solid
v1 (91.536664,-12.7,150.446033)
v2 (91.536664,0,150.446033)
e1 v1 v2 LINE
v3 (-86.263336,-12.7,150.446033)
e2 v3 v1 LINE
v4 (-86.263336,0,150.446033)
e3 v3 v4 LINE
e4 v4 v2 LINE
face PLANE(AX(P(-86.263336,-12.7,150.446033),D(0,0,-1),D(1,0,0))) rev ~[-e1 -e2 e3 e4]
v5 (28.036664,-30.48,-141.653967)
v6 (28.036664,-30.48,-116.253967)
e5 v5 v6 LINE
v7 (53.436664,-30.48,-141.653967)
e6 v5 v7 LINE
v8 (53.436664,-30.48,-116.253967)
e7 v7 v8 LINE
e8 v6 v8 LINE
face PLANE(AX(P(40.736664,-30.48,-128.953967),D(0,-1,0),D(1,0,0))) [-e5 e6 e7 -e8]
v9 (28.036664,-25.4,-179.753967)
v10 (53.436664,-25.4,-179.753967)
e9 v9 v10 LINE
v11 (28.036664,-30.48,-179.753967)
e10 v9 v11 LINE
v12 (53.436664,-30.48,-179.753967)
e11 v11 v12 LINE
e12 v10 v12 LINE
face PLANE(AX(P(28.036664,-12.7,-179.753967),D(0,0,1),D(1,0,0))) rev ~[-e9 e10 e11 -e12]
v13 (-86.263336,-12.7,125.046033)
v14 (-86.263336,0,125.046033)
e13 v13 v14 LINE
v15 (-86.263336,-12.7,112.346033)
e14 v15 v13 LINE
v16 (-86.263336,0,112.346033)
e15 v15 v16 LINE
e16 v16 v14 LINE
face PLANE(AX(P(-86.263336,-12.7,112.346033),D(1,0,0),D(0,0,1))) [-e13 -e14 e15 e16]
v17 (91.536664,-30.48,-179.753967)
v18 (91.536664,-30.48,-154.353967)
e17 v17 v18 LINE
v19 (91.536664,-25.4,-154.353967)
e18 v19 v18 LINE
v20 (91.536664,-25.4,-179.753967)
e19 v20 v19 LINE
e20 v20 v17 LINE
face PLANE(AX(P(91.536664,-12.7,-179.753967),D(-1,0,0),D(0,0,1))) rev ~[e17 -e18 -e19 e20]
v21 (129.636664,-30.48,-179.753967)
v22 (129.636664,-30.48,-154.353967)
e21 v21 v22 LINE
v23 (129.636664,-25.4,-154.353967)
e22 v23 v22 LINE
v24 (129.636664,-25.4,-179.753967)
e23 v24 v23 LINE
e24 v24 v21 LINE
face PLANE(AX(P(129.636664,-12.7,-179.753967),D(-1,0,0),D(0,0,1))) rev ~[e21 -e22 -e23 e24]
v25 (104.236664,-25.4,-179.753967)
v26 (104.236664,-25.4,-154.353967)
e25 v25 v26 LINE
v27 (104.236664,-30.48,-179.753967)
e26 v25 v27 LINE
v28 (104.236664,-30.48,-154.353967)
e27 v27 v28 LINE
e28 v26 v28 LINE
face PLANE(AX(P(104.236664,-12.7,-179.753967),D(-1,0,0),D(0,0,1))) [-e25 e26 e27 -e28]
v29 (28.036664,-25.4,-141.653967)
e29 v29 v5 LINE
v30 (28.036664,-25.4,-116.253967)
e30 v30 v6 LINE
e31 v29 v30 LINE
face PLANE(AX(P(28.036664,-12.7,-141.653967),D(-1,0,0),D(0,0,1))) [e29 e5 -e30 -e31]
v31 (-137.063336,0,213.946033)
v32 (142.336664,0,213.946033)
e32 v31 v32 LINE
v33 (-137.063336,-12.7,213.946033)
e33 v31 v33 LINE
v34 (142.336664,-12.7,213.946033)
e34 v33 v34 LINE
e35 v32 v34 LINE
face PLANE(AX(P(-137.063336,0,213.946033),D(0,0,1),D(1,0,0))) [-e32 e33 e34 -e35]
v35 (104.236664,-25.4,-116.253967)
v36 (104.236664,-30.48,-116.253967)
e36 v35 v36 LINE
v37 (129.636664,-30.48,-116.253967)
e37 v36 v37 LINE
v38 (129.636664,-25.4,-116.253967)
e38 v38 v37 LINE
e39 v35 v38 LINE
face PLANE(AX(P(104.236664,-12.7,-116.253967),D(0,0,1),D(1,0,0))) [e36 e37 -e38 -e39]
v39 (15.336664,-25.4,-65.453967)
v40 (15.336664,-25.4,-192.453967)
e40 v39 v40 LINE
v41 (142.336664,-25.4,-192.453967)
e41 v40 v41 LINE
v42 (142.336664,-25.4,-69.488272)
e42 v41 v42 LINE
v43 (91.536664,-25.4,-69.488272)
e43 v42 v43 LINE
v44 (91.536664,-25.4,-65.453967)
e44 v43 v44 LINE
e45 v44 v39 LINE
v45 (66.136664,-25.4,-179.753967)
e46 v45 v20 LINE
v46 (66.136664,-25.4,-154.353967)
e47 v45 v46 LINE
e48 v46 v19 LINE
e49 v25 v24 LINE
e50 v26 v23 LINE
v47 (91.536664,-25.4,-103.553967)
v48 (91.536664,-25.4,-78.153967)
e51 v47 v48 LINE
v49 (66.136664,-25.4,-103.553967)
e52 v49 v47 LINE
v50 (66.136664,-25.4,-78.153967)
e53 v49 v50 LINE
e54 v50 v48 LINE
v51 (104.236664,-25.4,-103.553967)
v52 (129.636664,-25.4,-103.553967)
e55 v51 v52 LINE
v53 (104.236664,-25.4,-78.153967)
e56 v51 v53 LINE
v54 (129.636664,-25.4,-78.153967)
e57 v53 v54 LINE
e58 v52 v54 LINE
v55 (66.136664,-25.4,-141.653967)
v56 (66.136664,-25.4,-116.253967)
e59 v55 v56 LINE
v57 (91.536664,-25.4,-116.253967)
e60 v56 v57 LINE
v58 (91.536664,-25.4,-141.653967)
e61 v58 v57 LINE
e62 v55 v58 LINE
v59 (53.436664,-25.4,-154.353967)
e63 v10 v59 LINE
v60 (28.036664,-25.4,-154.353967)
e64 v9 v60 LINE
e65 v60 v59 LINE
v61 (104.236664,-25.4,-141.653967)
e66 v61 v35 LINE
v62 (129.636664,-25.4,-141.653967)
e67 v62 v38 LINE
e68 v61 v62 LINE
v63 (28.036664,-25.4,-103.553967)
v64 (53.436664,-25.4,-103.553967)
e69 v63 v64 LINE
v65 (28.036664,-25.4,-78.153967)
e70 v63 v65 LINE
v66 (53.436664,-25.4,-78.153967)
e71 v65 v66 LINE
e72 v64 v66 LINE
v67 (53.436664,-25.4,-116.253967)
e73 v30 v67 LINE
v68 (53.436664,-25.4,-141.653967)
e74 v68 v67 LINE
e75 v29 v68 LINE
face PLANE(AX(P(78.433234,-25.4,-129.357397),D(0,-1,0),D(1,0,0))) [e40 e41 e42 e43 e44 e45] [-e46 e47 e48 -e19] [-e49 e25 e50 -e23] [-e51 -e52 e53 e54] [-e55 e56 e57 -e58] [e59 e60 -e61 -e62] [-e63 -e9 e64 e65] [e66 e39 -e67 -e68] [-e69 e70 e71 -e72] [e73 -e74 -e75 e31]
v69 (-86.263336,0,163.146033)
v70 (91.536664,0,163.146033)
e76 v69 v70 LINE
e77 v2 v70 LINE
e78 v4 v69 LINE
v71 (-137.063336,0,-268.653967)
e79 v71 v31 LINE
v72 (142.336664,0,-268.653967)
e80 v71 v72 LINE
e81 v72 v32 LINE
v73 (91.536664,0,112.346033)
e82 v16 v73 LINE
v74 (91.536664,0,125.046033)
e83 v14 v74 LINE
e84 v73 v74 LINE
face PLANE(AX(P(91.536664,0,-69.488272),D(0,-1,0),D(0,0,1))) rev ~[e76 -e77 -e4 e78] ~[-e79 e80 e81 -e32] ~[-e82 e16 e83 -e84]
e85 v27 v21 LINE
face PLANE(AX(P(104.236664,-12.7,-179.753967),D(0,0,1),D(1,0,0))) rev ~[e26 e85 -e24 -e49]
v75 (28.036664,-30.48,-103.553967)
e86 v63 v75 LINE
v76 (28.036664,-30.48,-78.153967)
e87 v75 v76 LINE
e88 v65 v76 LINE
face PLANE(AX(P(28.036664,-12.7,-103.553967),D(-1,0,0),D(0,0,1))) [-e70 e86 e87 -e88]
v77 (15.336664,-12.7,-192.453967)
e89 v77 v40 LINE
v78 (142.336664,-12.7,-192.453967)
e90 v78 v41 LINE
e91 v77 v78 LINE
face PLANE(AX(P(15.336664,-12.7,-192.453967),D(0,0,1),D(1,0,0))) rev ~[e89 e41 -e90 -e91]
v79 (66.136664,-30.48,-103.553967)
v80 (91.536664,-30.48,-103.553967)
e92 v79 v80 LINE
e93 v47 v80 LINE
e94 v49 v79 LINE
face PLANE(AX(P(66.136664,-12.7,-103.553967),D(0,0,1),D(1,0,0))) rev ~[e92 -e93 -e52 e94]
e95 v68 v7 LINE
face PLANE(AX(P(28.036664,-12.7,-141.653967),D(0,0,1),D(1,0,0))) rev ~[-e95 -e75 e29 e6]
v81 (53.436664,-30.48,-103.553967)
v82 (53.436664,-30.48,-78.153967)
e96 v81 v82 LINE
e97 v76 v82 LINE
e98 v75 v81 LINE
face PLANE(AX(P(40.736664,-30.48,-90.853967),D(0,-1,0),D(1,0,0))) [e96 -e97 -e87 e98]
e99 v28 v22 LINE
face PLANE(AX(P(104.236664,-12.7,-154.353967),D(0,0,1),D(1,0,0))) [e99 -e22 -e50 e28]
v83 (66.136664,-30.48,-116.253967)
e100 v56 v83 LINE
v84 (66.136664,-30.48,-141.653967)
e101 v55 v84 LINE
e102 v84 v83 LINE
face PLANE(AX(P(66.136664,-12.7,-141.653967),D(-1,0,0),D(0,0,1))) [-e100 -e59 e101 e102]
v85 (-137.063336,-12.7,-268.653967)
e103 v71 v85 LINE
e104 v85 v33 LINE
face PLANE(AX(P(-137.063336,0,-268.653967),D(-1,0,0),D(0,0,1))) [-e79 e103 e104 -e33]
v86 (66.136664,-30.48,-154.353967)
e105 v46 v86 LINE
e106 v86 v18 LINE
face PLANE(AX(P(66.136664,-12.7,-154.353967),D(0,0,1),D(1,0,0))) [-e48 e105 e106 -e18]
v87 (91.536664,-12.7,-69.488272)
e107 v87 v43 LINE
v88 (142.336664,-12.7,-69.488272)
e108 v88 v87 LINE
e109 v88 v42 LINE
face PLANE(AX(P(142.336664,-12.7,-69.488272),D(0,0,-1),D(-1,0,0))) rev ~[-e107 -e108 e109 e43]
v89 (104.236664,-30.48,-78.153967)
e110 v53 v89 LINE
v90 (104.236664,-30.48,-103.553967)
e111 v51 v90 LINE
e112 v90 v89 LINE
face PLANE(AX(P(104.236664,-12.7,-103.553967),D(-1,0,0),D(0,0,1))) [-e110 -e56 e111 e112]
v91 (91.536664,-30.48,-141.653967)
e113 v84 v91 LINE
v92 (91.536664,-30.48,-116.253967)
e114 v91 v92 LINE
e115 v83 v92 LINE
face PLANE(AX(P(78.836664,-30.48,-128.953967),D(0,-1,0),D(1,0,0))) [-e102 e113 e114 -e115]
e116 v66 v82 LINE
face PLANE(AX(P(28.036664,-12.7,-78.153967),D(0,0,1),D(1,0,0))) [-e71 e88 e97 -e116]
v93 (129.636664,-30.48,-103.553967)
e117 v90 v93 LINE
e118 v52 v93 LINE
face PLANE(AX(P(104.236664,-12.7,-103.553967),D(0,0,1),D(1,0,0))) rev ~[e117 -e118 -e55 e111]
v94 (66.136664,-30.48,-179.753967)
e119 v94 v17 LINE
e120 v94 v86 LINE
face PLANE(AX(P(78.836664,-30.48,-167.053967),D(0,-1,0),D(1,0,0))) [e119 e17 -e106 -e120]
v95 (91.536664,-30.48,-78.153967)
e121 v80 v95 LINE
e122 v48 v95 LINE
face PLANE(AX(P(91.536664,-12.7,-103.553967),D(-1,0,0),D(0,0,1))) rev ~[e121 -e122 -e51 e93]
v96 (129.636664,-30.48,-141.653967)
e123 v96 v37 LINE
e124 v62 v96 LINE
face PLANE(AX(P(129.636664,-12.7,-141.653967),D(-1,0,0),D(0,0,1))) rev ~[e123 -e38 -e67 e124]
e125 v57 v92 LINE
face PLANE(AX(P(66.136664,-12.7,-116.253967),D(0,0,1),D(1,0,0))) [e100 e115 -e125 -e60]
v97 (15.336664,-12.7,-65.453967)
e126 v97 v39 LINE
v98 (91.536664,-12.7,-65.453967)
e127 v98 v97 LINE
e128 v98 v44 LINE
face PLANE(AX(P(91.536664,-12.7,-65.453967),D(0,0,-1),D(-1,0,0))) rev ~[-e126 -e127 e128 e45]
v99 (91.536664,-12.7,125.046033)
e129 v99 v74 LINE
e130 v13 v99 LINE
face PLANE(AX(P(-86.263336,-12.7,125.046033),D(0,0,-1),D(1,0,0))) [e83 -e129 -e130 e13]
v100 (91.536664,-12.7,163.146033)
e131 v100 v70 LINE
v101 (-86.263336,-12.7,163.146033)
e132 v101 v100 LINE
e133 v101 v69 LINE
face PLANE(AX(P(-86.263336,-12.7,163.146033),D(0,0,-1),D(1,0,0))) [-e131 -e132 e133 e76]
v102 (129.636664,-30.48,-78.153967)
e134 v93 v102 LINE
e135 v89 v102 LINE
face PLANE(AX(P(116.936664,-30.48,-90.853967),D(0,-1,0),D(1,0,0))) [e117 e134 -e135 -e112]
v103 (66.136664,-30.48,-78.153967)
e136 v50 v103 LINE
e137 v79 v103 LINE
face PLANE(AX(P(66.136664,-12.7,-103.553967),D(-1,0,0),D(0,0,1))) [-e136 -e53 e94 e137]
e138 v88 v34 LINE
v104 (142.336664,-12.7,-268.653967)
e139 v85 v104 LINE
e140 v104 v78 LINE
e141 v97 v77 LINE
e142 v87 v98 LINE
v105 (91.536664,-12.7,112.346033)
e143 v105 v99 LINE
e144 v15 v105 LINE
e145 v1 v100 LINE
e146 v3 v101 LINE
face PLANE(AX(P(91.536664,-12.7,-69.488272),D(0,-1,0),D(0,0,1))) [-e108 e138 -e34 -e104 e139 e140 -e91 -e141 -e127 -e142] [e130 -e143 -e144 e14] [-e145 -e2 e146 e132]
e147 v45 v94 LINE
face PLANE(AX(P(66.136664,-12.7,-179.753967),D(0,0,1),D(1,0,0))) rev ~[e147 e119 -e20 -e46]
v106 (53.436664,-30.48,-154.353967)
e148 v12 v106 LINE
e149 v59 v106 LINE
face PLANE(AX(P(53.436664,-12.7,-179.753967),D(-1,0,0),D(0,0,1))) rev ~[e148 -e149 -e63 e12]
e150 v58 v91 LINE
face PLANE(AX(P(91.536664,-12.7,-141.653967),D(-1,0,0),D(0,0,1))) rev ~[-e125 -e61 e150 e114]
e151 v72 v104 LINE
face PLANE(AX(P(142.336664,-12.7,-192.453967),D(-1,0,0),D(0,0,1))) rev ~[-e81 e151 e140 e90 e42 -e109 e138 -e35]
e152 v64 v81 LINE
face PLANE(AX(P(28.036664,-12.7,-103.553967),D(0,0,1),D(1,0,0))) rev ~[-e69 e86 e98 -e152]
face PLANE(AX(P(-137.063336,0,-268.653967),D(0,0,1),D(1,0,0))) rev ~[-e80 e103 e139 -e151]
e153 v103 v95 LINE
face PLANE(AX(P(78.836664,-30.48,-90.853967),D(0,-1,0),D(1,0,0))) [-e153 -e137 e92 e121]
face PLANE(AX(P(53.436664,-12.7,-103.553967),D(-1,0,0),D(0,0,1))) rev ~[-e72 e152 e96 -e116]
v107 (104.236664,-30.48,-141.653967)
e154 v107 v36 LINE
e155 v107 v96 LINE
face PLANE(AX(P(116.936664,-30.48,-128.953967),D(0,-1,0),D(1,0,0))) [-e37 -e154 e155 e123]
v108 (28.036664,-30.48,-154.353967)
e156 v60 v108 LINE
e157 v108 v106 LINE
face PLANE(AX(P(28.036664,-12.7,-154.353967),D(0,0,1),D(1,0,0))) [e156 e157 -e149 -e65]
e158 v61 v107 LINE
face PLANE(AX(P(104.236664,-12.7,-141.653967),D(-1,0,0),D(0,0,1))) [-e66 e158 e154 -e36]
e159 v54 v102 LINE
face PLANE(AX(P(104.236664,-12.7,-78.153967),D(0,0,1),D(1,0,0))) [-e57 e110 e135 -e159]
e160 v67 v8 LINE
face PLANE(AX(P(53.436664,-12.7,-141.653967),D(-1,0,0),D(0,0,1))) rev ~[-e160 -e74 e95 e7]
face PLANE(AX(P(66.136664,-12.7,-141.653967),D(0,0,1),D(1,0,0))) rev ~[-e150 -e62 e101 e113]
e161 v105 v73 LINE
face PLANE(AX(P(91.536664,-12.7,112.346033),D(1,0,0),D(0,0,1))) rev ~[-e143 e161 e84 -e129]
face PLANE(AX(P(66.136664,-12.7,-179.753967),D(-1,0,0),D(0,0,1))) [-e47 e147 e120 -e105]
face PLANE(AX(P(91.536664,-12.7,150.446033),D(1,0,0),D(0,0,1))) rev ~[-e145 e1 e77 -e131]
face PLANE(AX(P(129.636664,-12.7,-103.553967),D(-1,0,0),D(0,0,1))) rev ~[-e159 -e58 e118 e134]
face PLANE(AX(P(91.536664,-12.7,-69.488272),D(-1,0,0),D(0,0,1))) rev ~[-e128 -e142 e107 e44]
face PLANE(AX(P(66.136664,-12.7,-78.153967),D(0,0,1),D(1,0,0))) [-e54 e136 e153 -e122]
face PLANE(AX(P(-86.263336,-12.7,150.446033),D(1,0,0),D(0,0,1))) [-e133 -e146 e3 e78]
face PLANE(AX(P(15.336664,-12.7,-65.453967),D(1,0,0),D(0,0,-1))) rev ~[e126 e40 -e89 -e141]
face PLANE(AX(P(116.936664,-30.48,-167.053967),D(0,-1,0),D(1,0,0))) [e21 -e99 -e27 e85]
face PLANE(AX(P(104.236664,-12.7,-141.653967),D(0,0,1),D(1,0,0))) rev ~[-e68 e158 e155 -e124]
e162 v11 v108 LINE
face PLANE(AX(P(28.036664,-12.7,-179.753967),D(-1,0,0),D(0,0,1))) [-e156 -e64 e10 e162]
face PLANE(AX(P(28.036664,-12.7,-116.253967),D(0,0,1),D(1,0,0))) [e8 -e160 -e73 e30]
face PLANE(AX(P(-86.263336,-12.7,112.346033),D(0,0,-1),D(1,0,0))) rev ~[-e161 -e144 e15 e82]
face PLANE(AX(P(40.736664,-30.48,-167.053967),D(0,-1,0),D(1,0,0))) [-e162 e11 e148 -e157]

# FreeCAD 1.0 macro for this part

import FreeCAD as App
import Part
import Sketcher
Q = App.Units.Quantity

doc = App.newDocument("Part")
params = doc.addObject("Spreadsheet::Sheet", "Params")
for row, (alias, value) in enumerate([
    ("sketch1_width", "11 in"),
    ("sketch1_height", "19 in"),
    ("pad1_length", "0.5 in"),
    ("sketch2_width", "7 in"),
    ("sketch2_height", "0.5 in"),
    ("pocket1_length", "1 in"),
    ("sketch3_width", "2 in"),
    ("sketch3_height", "1 in"),
    ("pocket2_length", "1 in"),
    ("sketch4_height", "1 in"),
    ("sketch4_width", "0.5 in"),
    ("pad2_length", "2 in"),
    ("sketch5_width", "1 in"),
    ("pad3_length", "0.7 in"),
    ("sketch6_width", "5 in"),
    ("sketch6_width2", "2 in"),
    ("sketch6_width3", "1 in"),
    ("pad4_length", "0.5 in"),
], start=1):
    params.set(f"A{row}", alias)
    params.set(f"B{row}", "=" + value)
    params.setAlias(f"B{row}", alias)

body = doc.addObject("PartDesign::Body", "Body")

# Sketch on XZ plane
sketch1 = body.newObject("Sketcher::SketchObject", "Sketch")
sketch1.AttachmentSupport = (doc.getObject("XZ_Plane"), [""])
sketch1.MapMode = "FlatFace"
sketch1.addGeometry([
    Part.LineSegment(App.Vector(-137.063336, 213.946033, 0), App.Vector(-137.063336, -268.653967, 0)),
    Part.LineSegment(App.Vector(-137.063336, -268.653967, 0), App.Vector(142.336664, -268.653967, 0)),
    Part.LineSegment(App.Vector(142.336664, -268.653967, 0), App.Vector(142.336664, 213.946033, 0)),
    Part.LineSegment(App.Vector(142.336664, 213.946033, 0), App.Vector(-137.063336, 213.946033, 0)),
], False)
sketch1.addConstraint([
    Sketcher.Constraint("Coincident", 0, 2, 1, 1),
    Sketcher.Constraint("Coincident", 1, 2, 2, 1),
    Sketcher.Constraint("Coincident", 2, 2, 3, 1),
    Sketcher.Constraint("Coincident", 3, 2, 0, 1),
    Sketcher.Constraint("Vertical", 0),
    Sketcher.Constraint("Horizontal", 1),
    Sketcher.Constraint("Vertical", 2),
    Sketcher.Constraint("Horizontal", 3),
    Sketcher.Constraint("DistanceX", 1, 1, 1, 2, Q("11 in")),
    Sketcher.Constraint("DistanceY", 0, 2, 0, 1, Q("19 in")),
    Sketcher.Constraint("DistanceX", 0, 2, -1, 1, Q("137.063336 mm")),
    Sketcher.Constraint("DistanceY", 0, 2, -1, 1, Q("268.653967 mm")),
])
sketch1.setExpression("Constraints[8]", "Params.sketch1_width")
sketch1.setExpression("Constraints[9]", "Params.sketch1_height")
pad1 = body.newObject("PartDesign::Pad", "Pad")
pad1.Profile = sketch1
pad1.setExpression("Length", "Params.pad1_length")

# Sketch on XZ plane
sketch2 = body.newObject("Sketcher::SketchObject", "Sketch001")
sketch2.AttachmentSupport = (doc.getObject("XZ_Plane"), [""])
sketch2.MapMode = "FlatFace"
sketch2.AttachmentOffset = App.Placement(App.Vector(0, 0, 0.5 * 25.4), App.Rotation())
sketch2.addGeometry([
    Part.LineSegment(App.Vector(-86.263336, 163.146033, 0), App.Vector(-86.263336, 150.446033, 0)),  # 0
    Part.LineSegment(App.Vector(-86.263336, 150.446033, 0), App.Vector(91.536664, 150.446033, 0)),  # 1
    Part.LineSegment(App.Vector(91.536664, 150.446033, 0), App.Vector(91.536664, 163.146033, 0)),  # 2
    Part.LineSegment(App.Vector(91.536664, 163.146033, 0), App.Vector(-86.263336, 163.146033, 0)),  # 3
    Part.LineSegment(App.Vector(-86.263336, 125.046033, 0), App.Vector(-86.263336, 112.346033, 0)),  # 4
    Part.LineSegment(App.Vector(-86.263336, 112.346033, 0), App.Vector(91.536664, 112.346033, 0)),  # 5
    Part.LineSegment(App.Vector(91.536664, 112.346033, 0), App.Vector(91.536664, 125.046033, 0)),  # 6
    Part.LineSegment(App.Vector(91.536664, 125.046033, 0), App.Vector(-86.263336, 125.046033, 0)),  # 7
], False)
sketch2.addConstraint([
    Sketcher.Constraint("Coincident", 0, 2, 1, 1),
    Sketcher.Constraint("Coincident", 1, 2, 2, 1),
    Sketcher.Constraint("Coincident", 2, 2, 3, 1),
    Sketcher.Constraint("Coincident", 3, 2, 0, 1),
    Sketcher.Constraint("Coincident", 4, 2, 5, 1),
    Sketcher.Constraint("Coincident", 5, 2, 6, 1),
    Sketcher.Constraint("Coincident", 6, 2, 7, 1),
    Sketcher.Constraint("Coincident", 7, 2, 4, 1),
    Sketcher.Constraint("Vertical", 0),
    Sketcher.Constraint("Horizontal", 1),
    Sketcher.Constraint("Vertical", 2),
    Sketcher.Constraint("Horizontal", 3),
    Sketcher.Constraint("Vertical", 4),
    Sketcher.Constraint("Horizontal", 5),
    Sketcher.Constraint("Vertical", 6),
    Sketcher.Constraint("Horizontal", 7),
    Sketcher.Constraint("Vertical", 3, 2, 4, 2),
    Sketcher.Constraint("Vertical", 2, 2, 5, 2),
    Sketcher.Constraint("Equal", 2, 4),
    Sketcher.Constraint("DistanceX", 1, 1, 1, 2, Q("7 in")),
    Sketcher.Constraint("DistanceY", 0, 2, 0, 1, Q("0.5 in")),
    Sketcher.Constraint("DistanceY", 4, 2, 3, 2, Q("2 in")),
    Sketcher.Constraint("DistanceX", 0, 2, -1, 1, Q("86.263336 mm")),
    Sketcher.Constraint("DistanceY", -1, 1, 0, 2, Q("150.446033 mm")),
])
sketch2.setExpression("Constraints[19]", "Params.sketch2_width")
sketch2.setExpression("Constraints[20]", "Params.sketch2_height")
pocket1 = body.newObject("PartDesign::Pocket", "Pocket")
pocket1.Profile = sketch2
pocket1.setExpression("Length", "Params.pocket1_length")

# Sketch on XZ plane
sketch3 = body.newObject("Sketcher::SketchObject", "Sketch002")
sketch3.AttachmentSupport = (doc.getObject("XZ_Plane"), [""])
sketch3.MapMode = "FlatFace"
sketch3.AttachmentOffset = App.Placement(App.Vector(0, 0, 0.5 * 25.4), App.Rotation())
sketch3.addGeometry([
    Part.LineSegment(App.Vector(91.536664, -44.088272, 0), App.Vector(91.536664, -69.488272, 0)),
    Part.LineSegment(App.Vector(91.536664, -69.488272, 0), App.Vector(142.336664, -69.488272, 0)),
    Part.LineSegment(App.Vector(142.336664, -69.488272, 0), App.Vector(142.336664, -44.088272, 0)),
    Part.LineSegment(App.Vector(142.336664, -44.088272, 0), App.Vector(91.536664, -44.088272, 0)),
], False)
sketch3.addConstraint([
    Sketcher.Constraint("Coincident", 0, 2, 1, 1),
    Sketcher.Constraint("Coincident", 1, 2, 2, 1),
    Sketcher.Constraint("Coincident", 2, 2, 3, 1),
    Sketcher.Constraint("Coincident", 3, 2, 0, 1),
    Sketcher.Constraint("Vertical", 0),
    Sketcher.Constraint("Horizontal", 1),
    Sketcher.Constraint("Vertical", 2),
    Sketcher.Constraint("Horizontal", 3),
    Sketcher.Constraint("DistanceX", 1, 1, 1, 2, Q("2 in")),
    Sketcher.Constraint("DistanceY", 0, 2, 0, 1, Q("1 in")),
    Sketcher.Constraint("DistanceY", 0, 2, -1, 1, Q("69.488272 mm")),
    Sketcher.Constraint("DistanceX", -1, 1, 0, 2, Q("91.536664 mm")),
])
sketch3.setExpression("Constraints[8]", "Params.sketch3_width")
sketch3.setExpression("Constraints[9]", "Params.sketch3_height")
pocket2 = body.newObject("PartDesign::Pocket", "Pocket001")
pocket2.Profile = sketch3
pocket2.setExpression("Length", "Params.pocket2_length")

# Sketch on YZ plane
sketch4 = body.newObject("Sketcher::SketchObject", "Sketch003")
sketch4.AttachmentSupport = (doc.getObject("YZ_Plane"), [""])
sketch4.MapMode = "FlatFace"
sketch4.AttachmentOffset = App.Placement(App.Vector(0, 0, 91.536664), App.Rotation())
sketch4.addGeometry([
    Part.LineSegment(App.Vector(-12.7, -44.088272, 0), App.Vector(-12.7, -69.488272, 0)),
    Part.LineSegment(App.Vector(-12.7, -69.488272, 0), App.Vector(0, -69.488272, 0)),
    Part.LineSegment(App.Vector(0, -69.488272, 0), App.Vector(0, -44.088272, 0)),
    Part.LineSegment(App.Vector(0, -44.088272, 0), App.Vector(-12.7, -44.088272, 0)),
], False)
sketch4.addConstraint([
    Sketcher.Constraint("Coincident", 0, 2, 1, 1),
    Sketcher.Constraint("Coincident", 1, 2, 2, 1),
    Sketcher.Constraint("Coincident", 2, 2, 3, 1),
    Sketcher.Constraint("Coincident", 3, 2, 0, 1),
    Sketcher.Constraint("Vertical", 0),
    Sketcher.Constraint("Horizontal", 1),
    Sketcher.Constraint("Vertical", 2),
    Sketcher.Constraint("Horizontal", 3),
    Sketcher.Constraint("PointOnObject", 1, 2, -2),
    Sketcher.Constraint("DistanceY", 0, 2, 0, 1, Q("1 in")),
    Sketcher.Constraint("DistanceX", 1, 1, 1, 2, Q("0.5 in")),
    Sketcher.Constraint("DistanceY", 0, 2, -1, 1, Q("69.488272 mm")),
])
sketch4.setExpression("Constraints[9]", "Params.sketch4_height")
sketch4.setExpression("Constraints[10]", "Params.sketch4_width")
pad2 = body.newObject("PartDesign::Pad", "Pad001")
pad2.Profile = sketch4
pad2.setExpression("Length", "Params.pad2_length")

# Sketch on XZ plane
sketch5 = body.newObject("Sketcher::SketchObject", "Sketch004")
sketch5.AttachmentSupport = (doc.getObject("XZ_Plane"), [""])
sketch5.MapMode = "FlatFace"
sketch5.AttachmentOffset = App.Placement(App.Vector(0, 0, 0.5 * 25.4), App.Rotation())
sketch5.addGeometry([
    Part.LineSegment(App.Vector(28.036664, -78.153967, 0), App.Vector(28.036664, -103.553967, 0)),  # 0
    Part.LineSegment(App.Vector(28.036664, -103.553967, 0), App.Vector(53.436664, -103.553967, 0)),  # 1
    Part.LineSegment(App.Vector(53.436664, -103.553967, 0), App.Vector(53.436664, -78.153967, 0)),  # 2
    Part.LineSegment(App.Vector(53.436664, -78.153967, 0), App.Vector(28.036664, -78.153967, 0)),  # 3
    Part.LineSegment(App.Vector(66.136664, -78.153967, 0), App.Vector(66.136664, -103.553967, 0)),  # 4
    Part.LineSegment(App.Vector(66.136664, -103.553967, 0), App.Vector(91.536664, -103.553967, 0)),  # 5
    Part.LineSegment(App.Vector(91.536664, -103.553967, 0), App.Vector(91.536664, -78.153967, 0)),  # 6
    Part.LineSegment(App.Vector(91.536664, -78.153967, 0), App.Vector(66.136664, -78.153967, 0)),  # 7
    Part.LineSegment(App.Vector(104.236664, -78.153967, 0), App.Vector(104.236664, -103.553967, 0)),  # 8
    Part.LineSegment(App.Vector(104.236664, -103.553967, 0), App.Vector(129.636664, -103.553967, 0)),  # 9
    Part.LineSegment(App.Vector(129.636664, -103.553967, 0), App.Vector(129.636664, -78.153967, 0)),  # 10
    Part.LineSegment(App.Vector(129.636664, -78.153967, 0), App.Vector(104.236664, -78.153967, 0)),  # 11
    Part.LineSegment(App.Vector(104.236664, -154.353967, 0), App.Vector(104.236664, -179.753967, 0)),  # 12
    Part.LineSegment(App.Vector(104.236664, -179.753967, 0), App.Vector(129.636664, -179.753967, 0)),  # 13
    Part.LineSegment(App.Vector(129.636664, -179.753967, 0), App.Vector(129.636664, -154.353967, 0)),  # 14
    Part.LineSegment(App.Vector(129.636664, -154.353967, 0), App.Vector(104.236664, -154.353967, 0)),  # 15
    Part.LineSegment(App.Vector(66.136664, -154.353967, 0), App.Vector(66.136664, -179.753967, 0)),  # 16
    Part.LineSegment(App.Vector(66.136664, -179.753967, 0), App.Vector(91.536664, -179.753967, 0)),  # 17
    Part.LineSegment(App.Vector(91.536664, -179.753967, 0), App.Vector(91.536664, -154.353967, 0)),  # 18
    Part.LineSegment(App.Vector(91.536664, -154.353967, 0), App.Vector(66.136664, -154.353967, 0)),  # 19
    Part.LineSegment(App.Vector(28.036664, -154.353967, 0), App.Vector(28.036664, -179.753967, 0)),  # 20
    Part.LineSegment(App.Vector(28.036664, -179.753967, 0), App.Vector(53.436664, -179.753967, 0)),  # 21
    Part.LineSegment(App.Vector(53.436664, -179.753967, 0), App.Vector(53.436664, -154.353967, 0)),  # 22
    Part.LineSegment(App.Vector(53.436664, -154.353967, 0), App.Vector(28.036664, -154.353967, 0)),  # 23
    Part.LineSegment(App.Vector(28.036664, -116.253967, 0), App.Vector(28.036664, -141.653967, 0)),  # 24
    Part.LineSegment(App.Vector(28.036664, -141.653967, 0), App.Vector(53.436664, -141.653967, 0)),  # 25
    Part.LineSegment(App.Vector(53.436664, -141.653967, 0), App.Vector(53.436664, -116.253967, 0)),  # 26
    Part.LineSegment(App.Vector(53.436664, -116.253967, 0), App.Vector(28.036664, -116.253967, 0)),  # 27
    Part.LineSegment(App.Vector(66.136664, -116.253967, 0), App.Vector(66.136664, -141.653967, 0)),  # 28
    Part.LineSegment(App.Vector(66.136664, -141.653967, 0), App.Vector(91.536664, -141.653967, 0)),  # 29
    Part.LineSegment(App.Vector(91.536664, -141.653967, 0), App.Vector(91.536664, -116.253967, 0)),  # 30
    Part.LineSegment(App.Vector(91.536664, -116.253967, 0), App.Vector(66.136664, -116.253967, 0)),  # 31
    Part.LineSegment(App.Vector(104.236664, -116.253967, 0), App.Vector(104.236664, -141.653967, 0)),  # 32
    Part.LineSegment(App.Vector(104.236664, -141.653967, 0), App.Vector(129.636664, -141.653967, 0)),  # 33
    Part.LineSegment(App.Vector(129.636664, -141.653967, 0), App.Vector(129.636664, -116.253967, 0)),  # 34
    Part.LineSegment(App.Vector(129.636664, -116.253967, 0), App.Vector(104.236664, -116.253967, 0)),  # 35
], False)
sketch5.addConstraint([
    Sketcher.Constraint("Coincident", 0, 2, 1, 1),
    Sketcher.Constraint("Coincident", 1, 2, 2, 1),
    Sketcher.Constraint("Coincident", 2, 2, 3, 1),
    Sketcher.Constraint("Coincident", 3, 2, 0, 1),
    Sketcher.Constraint("Coincident", 4, 2, 5, 1),
    Sketcher.Constraint("Coincident", 5, 2, 6, 1),
    Sketcher.Constraint("Coincident", 6, 2, 7, 1),
    Sketcher.Constraint("Coincident", 7, 2, 4, 1),
    Sketcher.Constraint("Coincident", 8, 2, 9, 1),
    Sketcher.Constraint("Coincident", 9, 2, 10, 1),
    Sketcher.Constraint("Coincident", 10, 2, 11, 1),
    Sketcher.Constraint("Coincident", 11, 2, 8, 1),
    Sketcher.Constraint("Coincident", 12, 2, 13, 1),
    Sketcher.Constraint("Coincident", 13, 2, 14, 1),
    Sketcher.Constraint("Coincident", 14, 2, 15, 1),
    Sketcher.Constraint("Coincident", 15, 2, 12, 1),
    Sketcher.Constraint("Coincident", 16, 2, 17, 1),
    Sketcher.Constraint("Coincident", 17, 2, 18, 1),
    Sketcher.Constraint("Coincident", 18, 2, 19, 1),
    Sketcher.Constraint("Coincident", 19, 2, 16, 1),
    Sketcher.Constraint("Coincident", 20, 2, 21, 1),
    Sketcher.Constraint("Coincident", 21, 2, 22, 1),
    Sketcher.Constraint("Coincident", 22, 2, 23, 1),
    Sketcher.Constraint("Coincident", 23, 2, 20, 1),
    Sketcher.Constraint("Coincident", 24, 2, 25, 1),
    Sketcher.Constraint("Coincident", 25, 2, 26, 1),
    Sketcher.Constraint("Coincident", 26, 2, 27, 1),
    Sketcher.Constraint("Coincident", 27, 2, 24, 1),
    Sketcher.Constraint("Coincident", 28, 2, 29, 1),
    Sketcher.Constraint("Coincident", 29, 2, 30, 1),
    Sketcher.Constraint("Coincident", 30, 2, 31, 1),
    Sketcher.Constraint("Coincident", 31, 2, 28, 1),
    Sketcher.Constraint("Coincident", 32, 2, 33, 1),
    Sketcher.Constraint("Coincident", 33, 2, 34, 1),
    Sketcher.Constraint("Coincident", 34, 2, 35, 1),
    Sketcher.Constraint("Coincident", 35, 2, 32, 1),
    Sketcher.Constraint("Vertical", 0),
    Sketcher.Constraint("Horizontal", 1),
    Sketcher.Constraint("Vertical", 2),
    Sketcher.Constraint("Horizontal", 3),
    Sketcher.Constraint("Vertical", 4),
    Sketcher.Constraint("Horizontal", 5),
    Sketcher.Constraint("Vertical", 6),
    Sketcher.Constraint("Horizontal", 7),
    Sketcher.Constraint("Vertical", 8),
    Sketcher.Constraint("Horizontal", 9),
    Sketcher.Constraint("Vertical", 10),
    Sketcher.Constraint("Horizontal", 11),
    Sketcher.Constraint("Vertical", 12),
    Sketcher.Constraint("Horizontal", 13),
    Sketcher.Constraint("Vertical", 14),
    Sketcher.Constraint("Horizontal", 15),
    Sketcher.Constraint("Vertical", 16),
    Sketcher.Constraint("Horizontal", 17),
    Sketcher.Constraint("Vertical", 18),
    Sketcher.Constraint("Horizontal", 19),
    Sketcher.Constraint("Vertical", 20),
    Sketcher.Constraint("Horizontal", 21),
    Sketcher.Constraint("Vertical", 22),
    Sketcher.Constraint("Horizontal", 23),
    Sketcher.Constraint("Vertical", 24),
    Sketcher.Constraint("Horizontal", 25),
    Sketcher.Constraint("Vertical", 26),
    Sketcher.Constraint("Horizontal", 27),
    Sketcher.Constraint("Vertical", 28),
    Sketcher.Constraint("Horizontal", 29),
    Sketcher.Constraint("Vertical", 30),
    Sketcher.Constraint("Horizontal", 31),
    Sketcher.Constraint("Vertical", 32),
    Sketcher.Constraint("Horizontal", 33),
    Sketcher.Constraint("Vertical", 34),
    Sketcher.Constraint("Horizontal", 35),
    Sketcher.Constraint("Horizontal", 1, 2, 4, 2),
    Sketcher.Constraint("Horizontal", 3, 2, 6, 2),
    Sketcher.Constraint("Horizontal", 5, 2, 8, 2),
    Sketcher.Constraint("Horizontal", 7, 2, 10, 2),
    Sketcher.Constraint("Horizontal", 13, 2, 16, 2),
    Sketcher.Constraint("Horizontal", 15, 2, 18, 2),
    Sketcher.Constraint("Horizontal", 17, 2, 20, 2),
    Sketcher.Constraint("Horizontal", 19, 2, 22, 2),
    Sketcher.Constraint("Horizontal", 25, 2, 28, 2),
    Sketcher.Constraint("Horizontal", 27, 2, 30, 2),
    Sketcher.Constraint("Horizontal", 29, 2, 32, 2),
    Sketcher.Constraint("Horizontal", 31, 2, 34, 2),
    Sketcher.Constraint("Vertical", 11, 2, 12, 2),
    Sketcher.Constraint("Vertical", 10, 2, 13, 2),
    Sketcher.Constraint("Vertical", 7, 2, 16, 2),
    Sketcher.Constraint("Vertical", 6, 2, 17, 2),
    Sketcher.Constraint("Vertical", 3, 2, 20, 2),
    Sketcher.Constraint("Vertical", 2, 2, 21, 2),
    Sketcher.Constraint("Vertical", 23, 2, 24, 2),
    Sketcher.Constraint("Vertical", 22, 2, 25, 2),
    Sketcher.Constraint("Vertical", 19, 2, 28, 2),
    Sketcher.Constraint("Vertical", 18, 2, 29, 2),
    Sketcher.Constraint("Vertical", 15, 2, 32, 2),
    Sketcher.Constraint("Vertical", 14, 2, 33, 2),
    Sketcher.Constraint("Equal", 3, 5),
    Sketcher.Constraint("Equal", 7, 9),
    Sketcher.Constraint("Equal", 35, 0),
    Sketcher.Constraint("Equal", 10, 12),
    Sketcher.Constraint("Equal", 22, 24),
    Sketcher.Constraint("DistanceX", 1, 1, 1, 2, Q("1 in")),
    Sketcher.Constraint("DistanceX", 1, 2, 8, 2, Q("2 in")),
    Sketcher.Constraint("DistanceY", 12, 2, 8, 2, Q("3 in")),
    Sketcher.Constraint("DistanceX", 1, 2, 4, 2, Q("0.5 in")),
    Sketcher.Constraint("DistanceY", 23, 2, 24, 2, Q("0.5 in")),
    Sketcher.Constraint("DistanceX", -1, 1, 0, 2, Q("28.036664 mm")),
    Sketcher.Constraint("DistanceY", 0, 2, -1, 1, Q("103.553967 mm")),
])
sketch5.setExpression("Constraints[101]", "Params.sketch5_width")
pad3 = body.newObject("PartDesign::Pad", "Pad002")
pad3.Profile = sketch5
pad3.setExpression("Length", "Params.pad3_length")

# Sketch on XZ plane
sketch6 = body.newObject("Sketcher::SketchObject", "Sketch005")
sketch6.AttachmentSupport = (doc.getObject("XZ_Plane"), [""])
sketch6.MapMode = "FlatFace"
sketch6.AttachmentOffset = App.Placement(App.Vector(0, 0, 0.5 * 25.4), App.Rotation())
sketch6.addGeometry([
    Part.LineSegment(App.Vector(15.336664, -192.453967, 0), App.Vector(142.336664, -192.453967, 0)),  # 0
    Part.LineSegment(App.Vector(142.336664, -192.453967, 0), App.Vector(142.336664, -69.488272, 0)),  # 1
    Part.LineSegment(App.Vector(142.336664, -69.488272, 0), App.Vector(91.536664, -69.488272, 0)),  # 2
    Part.LineSegment(App.Vector(91.536664, -69.488272, 0), App.Vector(91.536664, -65.453967, 0)),  # 3
    Part.LineSegment(App.Vector(91.536664, -65.453967, 0), App.Vector(15.336664, -65.453967, 0)),  # 4
    Part.LineSegment(App.Vector(15.336664, -65.453967, 0), App.Vector(15.336664, -192.453967, 0)),  # 5
    Part.LineSegment(App.Vector(53.436664, -179.753967, 0), App.Vector(28.036664, -179.753967, 0)),  # 6
    Part.LineSegment(App.Vector(28.036664, -179.753967, 0), App.Vector(28.036664, -154.353967, 0)),  # 7
    Part.LineSegment(App.Vector(28.036664, -154.353967, 0), App.Vector(53.436664, -154.353967, 0)),  # 8
    Part.LineSegment(App.Vector(53.436664, -154.353967, 0), App.Vector(53.436664, -179.753967, 0)),  # 9
    Part.LineSegment(App.Vector(91.536664, -179.753967, 0), App.Vector(66.136664, -179.753967, 0)),  # 10
    Part.LineSegment(App.Vector(66.136664, -179.753967, 0), App.Vector(66.136664, -154.353967, 0)),  # 11
    Part.LineSegment(App.Vector(66.136664, -154.353967, 0), App.Vector(91.536664, -154.353967, 0)),  # 12
    Part.LineSegment(App.Vector(91.536664, -154.353967, 0), App.Vector(91.536664, -179.753967, 0)),  # 13
    Part.LineSegment(App.Vector(53.436664, -141.653967, 0), App.Vector(28.036664, -141.653967, 0)),  # 14
    Part.LineSegment(App.Vector(28.036664, -141.653967, 0), App.Vector(28.036664, -116.253967, 0)),  # 15
    Part.LineSegment(App.Vector(28.036664, -116.253967, 0), App.Vector(53.436664, -116.253967, 0)),  # 16
    Part.LineSegment(App.Vector(53.436664, -116.253967, 0), App.Vector(53.436664, -141.653967, 0)),  # 17
    Part.LineSegment(App.Vector(91.536664, -141.653967, 0), App.Vector(66.136664, -141.653967, 0)),  # 18
    Part.LineSegment(App.Vector(66.136664, -141.653967, 0), App.Vector(66.136664, -116.253967, 0)),  # 19
    Part.LineSegment(App.Vector(66.136664, -116.253967, 0), App.Vector(91.536664, -116.253967, 0)),  # 20
    Part.LineSegment(App.Vector(91.536664, -116.253967, 0), App.Vector(91.536664, -141.653967, 0)),  # 21
    Part.LineSegment(App.Vector(129.636664, -179.753967, 0), App.Vector(104.236664, -179.753967, 0)),  # 22
    Part.LineSegment(App.Vector(104.236664, -179.753967, 0), App.Vector(104.236664, -154.353967, 0)),  # 23
    Part.LineSegment(App.Vector(104.236664, -154.353967, 0), App.Vector(129.636664, -154.353967, 0)),  # 24
    Part.LineSegment(App.Vector(129.636664, -154.353967, 0), App.Vector(129.636664, -179.753967, 0)),  # 25
    Part.LineSegment(App.Vector(129.636664, -141.653967, 0), App.Vector(104.236664, -141.653967, 0)),  # 26
    Part.LineSegment(App.Vector(104.236664, -141.653967, 0), App.Vector(104.236664, -116.253967, 0)),  # 27
    Part.LineSegment(App.Vector(104.236664, -116.253967, 0), App.Vector(129.636664, -116.253967, 0)),  # 28
    Part.LineSegment(App.Vector(129.636664, -116.253967, 0), App.Vector(129.636664, -141.653967, 0)),  # 29
    Part.LineSegment(App.Vector(53.436664, -103.553967, 0), App.Vector(28.036664, -103.553967, 0)),  # 30
    Part.LineSegment(App.Vector(28.036664, -103.553967, 0), App.Vector(28.036664, -78.153967, 0)),  # 31
    Part.LineSegment(App.Vector(28.036664, -78.153967, 0), App.Vector(53.436664, -78.153967, 0)),  # 32
    Part.LineSegment(App.Vector(53.436664, -78.153967, 0), App.Vector(53.436664, -103.553967, 0)),  # 33
    Part.LineSegment(App.Vector(91.536664, -103.553967, 0), App.Vector(66.136664, -103.553967, 0)),  # 34
    Part.LineSegment(App.Vector(66.136664, -103.553967, 0), App.Vector(66.136664, -78.153967, 0)),  # 35
    Part.LineSegment(App.Vector(66.136664, -78.153967, 0), App.Vector(91.536664, -78.153967, 0)),  # 36
    Part.LineSegment(App.Vector(91.536664, -78.153967, 0), App.Vector(91.536664, -103.553967, 0)),  # 37
    Part.LineSegment(App.Vector(129.636664, -103.553967, 0), App.Vector(104.236664, -103.553967, 0)),  # 38
    Part.LineSegment(App.Vector(104.236664, -103.553967, 0), App.Vector(104.236664, -78.153967, 0)),  # 39
    Part.LineSegment(App.Vector(104.236664, -78.153967, 0), App.Vector(129.636664, -78.153967, 0)),  # 40
    Part.LineSegment(App.Vector(129.636664, -78.153967, 0), App.Vector(129.636664, -103.553967, 0)),  # 41
], False)
sketch6.addConstraint([
    Sketcher.Constraint("Coincident", 0, 2, 1, 1),
    Sketcher.Constraint("Coincident", 1, 2, 2, 1),
    Sketcher.Constraint("Coincident", 2, 2, 3, 1),
    Sketcher.Constraint("Coincident", 3, 2, 4, 1),
    Sketcher.Constraint("Coincident", 4, 2, 5, 1),
    Sketcher.Constraint("Coincident", 5, 2, 0, 1),
    Sketcher.Constraint("Coincident", 6, 2, 7, 1),
    Sketcher.Constraint("Coincident", 7, 2, 8, 1),
    Sketcher.Constraint("Coincident", 8, 2, 9, 1),
    Sketcher.Constraint("Coincident", 9, 2, 6, 1),
    Sketcher.Constraint("Coincident", 10, 2, 11, 1),
    Sketcher.Constraint("Coincident", 11, 2, 12, 1),
    Sketcher.Constraint("Coincident", 12, 2, 13, 1),
    Sketcher.Constraint("Coincident", 13, 2, 10, 1),
    Sketcher.Constraint("Coincident", 14, 2, 15, 1),
    Sketcher.Constraint("Coincident", 15, 2, 16, 1),
    Sketcher.Constraint("Coincident", 16, 2, 17, 1),
    Sketcher.Constraint("Coincident", 17, 2, 14, 1),
    Sketcher.Constraint("Coincident", 18, 2, 19, 1),
    Sketcher.Constraint("Coincident", 19, 2, 20, 1),
    Sketcher.Constraint("Coincident", 20, 2, 21, 1),
    Sketcher.Constraint("Coincident", 21, 2, 18, 1),
    Sketcher.Constraint("Coincident", 22, 2, 23, 1),
    Sketcher.Constraint("Coincident", 23, 2, 24, 1),
    Sketcher.Constraint("Coincident", 24, 2, 25, 1),
    Sketcher.Constraint("Coincident", 25, 2, 22, 1),
    Sketcher.Constraint("Coincident", 26, 2, 27, 1),
    Sketcher.Constraint("Coincident", 27, 2, 28, 1),
    Sketcher.Constraint("Coincident", 28, 2, 29, 1),
    Sketcher.Constraint("Coincident", 29, 2, 26, 1),
    Sketcher.Constraint("Coincident", 30, 2, 31, 1),
    Sketcher.Constraint("Coincident", 31, 2, 32, 1),
    Sketcher.Constraint("Coincident", 32, 2, 33, 1),
    Sketcher.Constraint("Coincident", 33, 2, 30, 1),
    Sketcher.Constraint("Coincident", 34, 2, 35, 1),
    Sketcher.Constraint("Coincident", 35, 2, 36, 1),
    Sketcher.Constraint("Coincident", 36, 2, 37, 1),
    Sketcher.Constraint("Coincident", 37, 2, 34, 1),
    Sketcher.Constraint("Coincident", 38, 2, 39, 1),
    Sketcher.Constraint("Coincident", 39, 2, 40, 1),
    Sketcher.Constraint("Coincident", 40, 2, 41, 1),
    Sketcher.Constraint("Coincident", 41, 2, 38, 1),
    Sketcher.Constraint("Horizontal", 0),
    Sketcher.Constraint("Vertical", 1),
    Sketcher.Constraint("Horizontal", 2),
    Sketcher.Constraint("Vertical", 3),
    Sketcher.Constraint("Horizontal", 4),
    Sketcher.Constraint("Vertical", 5),
    Sketcher.Constraint("Horizontal", 6),
    Sketcher.Constraint("Vertical", 7),
    Sketcher.Constraint("Horizontal", 8),
    Sketcher.Constraint("Vertical", 9),
    Sketcher.Constraint("Horizontal", 10),
    Sketcher.Constraint("Vertical", 11),
    Sketcher.Constraint("Horizontal", 12),
    Sketcher.Constraint("Vertical", 13),
    Sketcher.Constraint("Horizontal", 14),
    Sketcher.Constraint("Vertical", 15),
    Sketcher.Constraint("Horizontal", 16),
    Sketcher.Constraint("Vertical", 17),
    Sketcher.Constraint("Horizontal", 18),
    Sketcher.Constraint("Vertical", 19),
    Sketcher.Constraint("Horizontal", 20),
    Sketcher.Constraint("Vertical", 21),
    Sketcher.Constraint("Horizontal", 22),
    Sketcher.Constraint("Vertical", 23),
    Sketcher.Constraint("Horizontal", 24),
    Sketcher.Constraint("Vertical", 25),
    Sketcher.Constraint("Horizontal", 26),
    Sketcher.Constraint("Vertical", 27),
    Sketcher.Constraint("Horizontal", 28),
    Sketcher.Constraint("Vertical", 29),
    Sketcher.Constraint("Horizontal", 30),
    Sketcher.Constraint("Vertical", 31),
    Sketcher.Constraint("Horizontal", 32),
    Sketcher.Constraint("Vertical", 33),
    Sketcher.Constraint("Horizontal", 34),
    Sketcher.Constraint("Vertical", 35),
    Sketcher.Constraint("Horizontal", 36),
    Sketcher.Constraint("Vertical", 37),
    Sketcher.Constraint("Horizontal", 38),
    Sketcher.Constraint("Vertical", 39),
    Sketcher.Constraint("Horizontal", 40),
    Sketcher.Constraint("Vertical", 41),
    Sketcher.Constraint("Horizontal", 9, 2, 10, 2),
    Sketcher.Constraint("Horizontal", 8, 2, 11, 2),
    Sketcher.Constraint("Horizontal", 17, 2, 18, 2),
    Sketcher.Constraint("Horizontal", 16, 2, 19, 2),
    Sketcher.Constraint("Horizontal", 13, 2, 22, 2),
    Sketcher.Constraint("Horizontal", 12, 2, 23, 2),
    Sketcher.Constraint("Horizontal", 21, 2, 26, 2),
    Sketcher.Constraint("Horizontal", 20, 2, 27, 2),
    Sketcher.Constraint("Horizontal", 33, 2, 34, 2),
    Sketcher.Constraint("Horizontal", 32, 2, 35, 2),
    Sketcher.Constraint("Horizontal", 37, 2, 38, 2),
    Sketcher.Constraint("Horizontal", 36, 2, 39, 2),
    Sketcher.Constraint("Vertical", 3, 2, 12, 2),
    Sketcher.Constraint("Vertical", 7, 2, 14, 2),
    Sketcher.Constraint("Vertical", 9, 2, 16, 2),
    Sketcher.Constraint("Vertical", 11, 2, 18, 2),
    Sketcher.Constraint("Vertical", 13, 2, 20, 2),
    Sketcher.Constraint("Vertical", 23, 2, 26, 2),
    Sketcher.Constraint("Vertical", 25, 2, 28, 2),
    Sketcher.Constraint("Vertical", 15, 2, 30, 2),
    Sketcher.Constraint("Vertical", 17, 2, 32, 2),
    Sketcher.Constraint("Vertical", 19, 2, 34, 2),
    Sketcher.Constraint("Vertical", 21, 2, 36, 2),
    Sketcher.Constraint("Vertical", 27, 2, 38, 2),
    Sketcher.Constraint("Vertical", 29, 2, 40, 2),
    Sketcher.Constraint("Equal", 8, 10),
    Sketcher.Constraint("Equal", 20, 22),
    Sketcher.Constraint("Equal", 0, 5),
    Sketcher.Constraint("Equal", 40, 7),
    Sketcher.Constraint("Equal", 13, 15),
    Sketcher.Constraint("Equal", 29, 31),
    Sketcher.Constraint("DistanceX", 0, 1, 0, 2, Q("5 in")),
    Sketcher.Constraint("DistanceX", 2, 2, 2, 1, Q("2 in")),
    Sketcher.Constraint("DistanceX", 6, 2, 6, 1, Q("1 in")),
    Sketcher.Constraint("DistanceY", 15, 2, 4, 2, Q("2 in")),
    Sketcher.Constraint("DistanceX", 5, 2, 6, 2, Q("0.5 in")),
    Sketcher.Constraint("DistanceY", 5, 2, 6, 2, Q("0.5 in")),
    Sketcher.Constraint("DistanceX", 13, 2, 22, 2, Q("0.5 in")),
    Sketcher.Constraint("DistanceY", 15, 2, 30, 2, Q("0.5 in")),
    Sketcher.Constraint("DistanceY", 1, 1, 1, 2, Q("122.965695 mm")),
    Sketcher.Constraint("DistanceY", 1, 2, -1, 1, Q("69.488272 mm")),
    Sketcher.Constraint("DistanceX", -1, 1, 0, 2, Q("142.336664 mm")),
])
sketch6.setExpression("Constraints[115]", "Params.sketch6_width")
sketch6.setExpression("Constraints[116]", "Params.sketch6_width2")
sketch6.setExpression("Constraints[117]", "Params.sketch6_width3")
pad4 = body.newObject("PartDesign::Pad", "Pad003")
pad4.Profile = sketch6
pad4.setExpression("Length", "Params.pad4_length")

doc.recompute()
